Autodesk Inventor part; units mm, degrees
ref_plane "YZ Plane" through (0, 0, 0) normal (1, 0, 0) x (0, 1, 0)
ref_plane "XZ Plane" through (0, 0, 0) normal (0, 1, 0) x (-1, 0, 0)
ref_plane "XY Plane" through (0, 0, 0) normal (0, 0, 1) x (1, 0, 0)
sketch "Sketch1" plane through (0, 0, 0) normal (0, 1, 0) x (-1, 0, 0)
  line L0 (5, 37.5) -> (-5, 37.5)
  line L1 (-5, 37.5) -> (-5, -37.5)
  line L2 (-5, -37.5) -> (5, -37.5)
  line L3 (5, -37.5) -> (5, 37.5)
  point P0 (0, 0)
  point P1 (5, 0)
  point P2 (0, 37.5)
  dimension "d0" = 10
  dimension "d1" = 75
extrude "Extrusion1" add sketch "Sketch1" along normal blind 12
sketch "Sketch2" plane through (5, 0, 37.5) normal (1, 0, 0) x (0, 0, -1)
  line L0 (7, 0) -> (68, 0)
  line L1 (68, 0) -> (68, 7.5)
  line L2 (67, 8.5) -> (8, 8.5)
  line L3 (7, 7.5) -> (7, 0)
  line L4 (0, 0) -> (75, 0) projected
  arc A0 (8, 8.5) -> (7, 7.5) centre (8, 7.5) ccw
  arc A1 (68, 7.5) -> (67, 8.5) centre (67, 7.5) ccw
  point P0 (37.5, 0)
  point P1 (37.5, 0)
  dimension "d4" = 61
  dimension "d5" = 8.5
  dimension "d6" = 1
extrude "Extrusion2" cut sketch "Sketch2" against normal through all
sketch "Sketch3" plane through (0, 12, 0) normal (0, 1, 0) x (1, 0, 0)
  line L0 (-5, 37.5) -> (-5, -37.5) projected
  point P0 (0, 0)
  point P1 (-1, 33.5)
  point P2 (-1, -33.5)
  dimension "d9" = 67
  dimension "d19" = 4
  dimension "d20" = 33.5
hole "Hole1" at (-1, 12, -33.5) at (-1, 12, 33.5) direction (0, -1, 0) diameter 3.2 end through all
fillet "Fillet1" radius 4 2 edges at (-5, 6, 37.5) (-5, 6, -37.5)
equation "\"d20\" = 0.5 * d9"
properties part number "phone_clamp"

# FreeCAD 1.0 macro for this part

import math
import FreeCAD as App
import Part
import Sketcher
from FreeCAD import Vector
Q = App.Units.Quantity


def edges_at(feature, points):
    """Names of the edges that pass closest to the given points."""
    edges = feature.Shape.Edges
    near = lambda p: min(range(len(edges)), key=lambda i: edges[i].distToShape(Part.Vertex(*p))[0])
    return sorted({f"Edge{near(p) + 1}" for p in points})

doc = App.newDocument("Part")
params = doc.addObject("Spreadsheet::Sheet", "Params")
for row, (alias, value) in enumerate([
    ("sketch1_width", "10 mm"),
    ("sketch1_height", "75 mm"),
    ("pad1_length", "12 mm"),
    ("sketch2_radius", "1 mm"),
    ("sketch2_height", "61 mm"),
    ("sketch3_diameter", "3.2 mm"),
    ("hole_diameter", "3.2 mm"),
    ("fillet_radius", "4 mm"),
], start=1):
    params.set(f"A{row}", alias)
    params.set(f"B{row}", "=" + value)
    params.setAlias(f"B{row}", alias)

body = doc.addObject("PartDesign::Body", "Body")

# Sketch on XZ plane
sketch1 = body.newObject("Sketcher::SketchObject", "Sketch")
sketch1.AttachmentSupport = (doc.getObject("XZ_Plane"), [""])
sketch1.MapMode = "FlatFace"
sketch1.addGeometry(Part.LineSegment(Vector(-5, -38, 0), Vector(-5, 38, 0)), False)
sketch1.addGeometry(Part.LineSegment(Vector(-5, 38, 0), Vector(5, 38, 0)), False)
sketch1.addGeometry(Part.LineSegment(Vector(5, 38, 0), Vector(5, -38, 0)), False)
sketch1.addGeometry(Part.LineSegment(Vector(5, -38, 0), Vector(-5, -38, 0)), False)
sketch1.addConstraint(Sketcher.Constraint("Coincident", 0, 2, 1, 1))
sketch1.addConstraint(Sketcher.Constraint("Coincident", 1, 2, 2, 1))
sketch1.addConstraint(Sketcher.Constraint("Coincident", 2, 2, 3, 1))
sketch1.addConstraint(Sketcher.Constraint("Coincident", 3, 2, 0, 1))
sketch1.addConstraint(Sketcher.Constraint("Vertical", 0))
sketch1.addConstraint(Sketcher.Constraint("Horizontal", 1))
sketch1.addConstraint(Sketcher.Constraint("Vertical", 2))
sketch1.addConstraint(Sketcher.Constraint("Horizontal", 3))
sketch1.addConstraint(Sketcher.Constraint("Symmetric", 0, 2, 2, 2, -1, 1))
sketch1.addConstraint(Sketcher.Constraint("DistanceX", 1, 1, 1, 2, Q("10 mm")))
sketch1.addConstraint(Sketcher.Constraint("DistanceY", 0, 1, 0, 2, Q("75 mm")))
sketch1.setExpression("Constraints[9]", "Params.sketch1_width")
sketch1.setExpression("Constraints[10]", "Params.sketch1_height")
pad1 = body.newObject("PartDesign::Pad", "Pad")
pad1.Profile = sketch1
pad1.setExpression("Length", "Params.pad1_length")
pad1.Reversed = True

# Sketch on YZ plane
sketch2 = body.newObject("Sketcher::SketchObject", "Sketch001")
sketch2.AttachmentSupport = (doc.getObject("YZ_Plane"), [""])
sketch2.MapMode = "FlatFace"
sketch2.AttachmentOffset = App.Placement(Vector(0, 0, 5), App.Rotation())
sketch2.addGeometry(Part.LineSegment(Vector(7.5, 30.5, 0), Vector(0, 30.5, 0)), False)
sketch2.addGeometry(Part.LineSegment(Vector(0, 30.5, 0), Vector(0, -30.5, 0)), False)
sketch2.addGeometry(Part.LineSegment(Vector(0, -30.5, 0), Vector(7.5, -30.5, 0)), False)
sketch2.addGeometry(Part.ArcOfCircle(Part.Circle(Vector(7.5, -29.5, 0), Vector(0, 0, 1), 1), math.radians(-90), math.radians(0)), False)
sketch2.addGeometry(Part.LineSegment(Vector(8.5, -29.5, 0), Vector(8.5, 29.5, 0)), False)
sketch2.addGeometry(Part.ArcOfCircle(Part.Circle(Vector(7.5, 29.5, 0), Vector(0, 0, 1), 1), math.radians(0), math.radians(90)), False)
sketch2.addConstraint(Sketcher.Constraint("Coincident", 0, 2, 1, 1))
sketch2.addConstraint(Sketcher.Constraint("Coincident", 1, 2, 2, 1))
sketch2.addConstraint(Sketcher.Constraint("Tangent", 2, 2, 3, 1))
sketch2.addConstraint(Sketcher.Constraint("Tangent", 3, 2, 4, 1))
sketch2.addConstraint(Sketcher.Constraint("Tangent", 4, 2, 5, 1))
sketch2.addConstraint(Sketcher.Constraint("Tangent", 5, 2, 0, 1))
sketch2.addConstraint(Sketcher.Constraint("Horizontal", 0))
sketch2.addConstraint(Sketcher.Constraint("Vertical", 1))
sketch2.addConstraint(Sketcher.Constraint("Horizontal", 2))
sketch2.addConstraint(Sketcher.Constraint("Vertical", 4))
sketch2.addConstraint(Sketcher.Constraint("Equal", 3, 5))
sketch2.addConstraint(Sketcher.Constraint("Symmetric", 0, 2, 1, 2, -1, 1))
sketch2.addConstraint(Sketcher.Constraint("Radius", 3, Q("1 mm")))
sketch2.addConstraint(Sketcher.Constraint("DistanceY", 1, 2, 1, 1, Q("61 mm")))
sketch2.addConstraint(Sketcher.Constraint("DistanceX", -1, 1, 3, 2, Q("8.5 mm")))
sketch2.setExpression("Constraints[12]", "Params.sketch2_radius")
sketch2.setExpression("Constraints[13]", "Params.sketch2_height")
pocket1 = body.newObject("PartDesign::Pocket", "Pocket")
pocket1.Profile = sketch2
pocket1.Type = "ThroughAll"

# Sketch on XZ plane
sketch3 = body.newObject("Sketcher::SketchObject", "Sketch002")
sketch3.AttachmentSupport = (doc.getObject("XZ_Plane"), [""])
sketch3.MapMode = "FlatFace"
sketch3.AttachmentOffset = App.Placement(Vector(0, 0, -12), App.Rotation())
sketch3.addGeometry(Part.Circle(Vector(-1, -33.5, 0), Vector(0, 0, 1), 1.6), False)
sketch3.addGeometry(Part.Circle(Vector(-1, 33.5, 0), Vector(0, 0, 1), 1.6), False)
sketch3.addConstraint(Sketcher.Constraint("Equal", 0, 1))
sketch3.addConstraint(Sketcher.Constraint("Symmetric", 0, 3, 1, 3, -1))
sketch3.addConstraint(Sketcher.Constraint("Diameter", 0, Q("3.2 mm")))
sketch3.addConstraint(Sketcher.Constraint("DistanceX", 0, 3, -1, 1, Q("1 mm")))
sketch3.addConstraint(Sketcher.Constraint("DistanceY", 0, 3, 1, 3, Q("67 mm")))
sketch3.setExpression("Constraints[2]", "Params.sketch3_diameter")
doc.recompute()
hole = body.newObject("PartDesign::Hole", "Hole")
hole.Profile = sketch3
hole.ThreadType = "None"
hole.setExpression("Diameter", "Params.hole_diameter")
hole.DepthType = "ThroughAll"
hole.Reversed = True
doc.recompute()

fillet = body.newObject("PartDesign::Fillet", "Fillet")
fillet.Base = (hole, edges_at(hole, [(-5, 6, 37.5), (-5, 6, -37.5)]))
fillet.setExpression("Radius", "Params.fillet_radius")

doc.recompute()
